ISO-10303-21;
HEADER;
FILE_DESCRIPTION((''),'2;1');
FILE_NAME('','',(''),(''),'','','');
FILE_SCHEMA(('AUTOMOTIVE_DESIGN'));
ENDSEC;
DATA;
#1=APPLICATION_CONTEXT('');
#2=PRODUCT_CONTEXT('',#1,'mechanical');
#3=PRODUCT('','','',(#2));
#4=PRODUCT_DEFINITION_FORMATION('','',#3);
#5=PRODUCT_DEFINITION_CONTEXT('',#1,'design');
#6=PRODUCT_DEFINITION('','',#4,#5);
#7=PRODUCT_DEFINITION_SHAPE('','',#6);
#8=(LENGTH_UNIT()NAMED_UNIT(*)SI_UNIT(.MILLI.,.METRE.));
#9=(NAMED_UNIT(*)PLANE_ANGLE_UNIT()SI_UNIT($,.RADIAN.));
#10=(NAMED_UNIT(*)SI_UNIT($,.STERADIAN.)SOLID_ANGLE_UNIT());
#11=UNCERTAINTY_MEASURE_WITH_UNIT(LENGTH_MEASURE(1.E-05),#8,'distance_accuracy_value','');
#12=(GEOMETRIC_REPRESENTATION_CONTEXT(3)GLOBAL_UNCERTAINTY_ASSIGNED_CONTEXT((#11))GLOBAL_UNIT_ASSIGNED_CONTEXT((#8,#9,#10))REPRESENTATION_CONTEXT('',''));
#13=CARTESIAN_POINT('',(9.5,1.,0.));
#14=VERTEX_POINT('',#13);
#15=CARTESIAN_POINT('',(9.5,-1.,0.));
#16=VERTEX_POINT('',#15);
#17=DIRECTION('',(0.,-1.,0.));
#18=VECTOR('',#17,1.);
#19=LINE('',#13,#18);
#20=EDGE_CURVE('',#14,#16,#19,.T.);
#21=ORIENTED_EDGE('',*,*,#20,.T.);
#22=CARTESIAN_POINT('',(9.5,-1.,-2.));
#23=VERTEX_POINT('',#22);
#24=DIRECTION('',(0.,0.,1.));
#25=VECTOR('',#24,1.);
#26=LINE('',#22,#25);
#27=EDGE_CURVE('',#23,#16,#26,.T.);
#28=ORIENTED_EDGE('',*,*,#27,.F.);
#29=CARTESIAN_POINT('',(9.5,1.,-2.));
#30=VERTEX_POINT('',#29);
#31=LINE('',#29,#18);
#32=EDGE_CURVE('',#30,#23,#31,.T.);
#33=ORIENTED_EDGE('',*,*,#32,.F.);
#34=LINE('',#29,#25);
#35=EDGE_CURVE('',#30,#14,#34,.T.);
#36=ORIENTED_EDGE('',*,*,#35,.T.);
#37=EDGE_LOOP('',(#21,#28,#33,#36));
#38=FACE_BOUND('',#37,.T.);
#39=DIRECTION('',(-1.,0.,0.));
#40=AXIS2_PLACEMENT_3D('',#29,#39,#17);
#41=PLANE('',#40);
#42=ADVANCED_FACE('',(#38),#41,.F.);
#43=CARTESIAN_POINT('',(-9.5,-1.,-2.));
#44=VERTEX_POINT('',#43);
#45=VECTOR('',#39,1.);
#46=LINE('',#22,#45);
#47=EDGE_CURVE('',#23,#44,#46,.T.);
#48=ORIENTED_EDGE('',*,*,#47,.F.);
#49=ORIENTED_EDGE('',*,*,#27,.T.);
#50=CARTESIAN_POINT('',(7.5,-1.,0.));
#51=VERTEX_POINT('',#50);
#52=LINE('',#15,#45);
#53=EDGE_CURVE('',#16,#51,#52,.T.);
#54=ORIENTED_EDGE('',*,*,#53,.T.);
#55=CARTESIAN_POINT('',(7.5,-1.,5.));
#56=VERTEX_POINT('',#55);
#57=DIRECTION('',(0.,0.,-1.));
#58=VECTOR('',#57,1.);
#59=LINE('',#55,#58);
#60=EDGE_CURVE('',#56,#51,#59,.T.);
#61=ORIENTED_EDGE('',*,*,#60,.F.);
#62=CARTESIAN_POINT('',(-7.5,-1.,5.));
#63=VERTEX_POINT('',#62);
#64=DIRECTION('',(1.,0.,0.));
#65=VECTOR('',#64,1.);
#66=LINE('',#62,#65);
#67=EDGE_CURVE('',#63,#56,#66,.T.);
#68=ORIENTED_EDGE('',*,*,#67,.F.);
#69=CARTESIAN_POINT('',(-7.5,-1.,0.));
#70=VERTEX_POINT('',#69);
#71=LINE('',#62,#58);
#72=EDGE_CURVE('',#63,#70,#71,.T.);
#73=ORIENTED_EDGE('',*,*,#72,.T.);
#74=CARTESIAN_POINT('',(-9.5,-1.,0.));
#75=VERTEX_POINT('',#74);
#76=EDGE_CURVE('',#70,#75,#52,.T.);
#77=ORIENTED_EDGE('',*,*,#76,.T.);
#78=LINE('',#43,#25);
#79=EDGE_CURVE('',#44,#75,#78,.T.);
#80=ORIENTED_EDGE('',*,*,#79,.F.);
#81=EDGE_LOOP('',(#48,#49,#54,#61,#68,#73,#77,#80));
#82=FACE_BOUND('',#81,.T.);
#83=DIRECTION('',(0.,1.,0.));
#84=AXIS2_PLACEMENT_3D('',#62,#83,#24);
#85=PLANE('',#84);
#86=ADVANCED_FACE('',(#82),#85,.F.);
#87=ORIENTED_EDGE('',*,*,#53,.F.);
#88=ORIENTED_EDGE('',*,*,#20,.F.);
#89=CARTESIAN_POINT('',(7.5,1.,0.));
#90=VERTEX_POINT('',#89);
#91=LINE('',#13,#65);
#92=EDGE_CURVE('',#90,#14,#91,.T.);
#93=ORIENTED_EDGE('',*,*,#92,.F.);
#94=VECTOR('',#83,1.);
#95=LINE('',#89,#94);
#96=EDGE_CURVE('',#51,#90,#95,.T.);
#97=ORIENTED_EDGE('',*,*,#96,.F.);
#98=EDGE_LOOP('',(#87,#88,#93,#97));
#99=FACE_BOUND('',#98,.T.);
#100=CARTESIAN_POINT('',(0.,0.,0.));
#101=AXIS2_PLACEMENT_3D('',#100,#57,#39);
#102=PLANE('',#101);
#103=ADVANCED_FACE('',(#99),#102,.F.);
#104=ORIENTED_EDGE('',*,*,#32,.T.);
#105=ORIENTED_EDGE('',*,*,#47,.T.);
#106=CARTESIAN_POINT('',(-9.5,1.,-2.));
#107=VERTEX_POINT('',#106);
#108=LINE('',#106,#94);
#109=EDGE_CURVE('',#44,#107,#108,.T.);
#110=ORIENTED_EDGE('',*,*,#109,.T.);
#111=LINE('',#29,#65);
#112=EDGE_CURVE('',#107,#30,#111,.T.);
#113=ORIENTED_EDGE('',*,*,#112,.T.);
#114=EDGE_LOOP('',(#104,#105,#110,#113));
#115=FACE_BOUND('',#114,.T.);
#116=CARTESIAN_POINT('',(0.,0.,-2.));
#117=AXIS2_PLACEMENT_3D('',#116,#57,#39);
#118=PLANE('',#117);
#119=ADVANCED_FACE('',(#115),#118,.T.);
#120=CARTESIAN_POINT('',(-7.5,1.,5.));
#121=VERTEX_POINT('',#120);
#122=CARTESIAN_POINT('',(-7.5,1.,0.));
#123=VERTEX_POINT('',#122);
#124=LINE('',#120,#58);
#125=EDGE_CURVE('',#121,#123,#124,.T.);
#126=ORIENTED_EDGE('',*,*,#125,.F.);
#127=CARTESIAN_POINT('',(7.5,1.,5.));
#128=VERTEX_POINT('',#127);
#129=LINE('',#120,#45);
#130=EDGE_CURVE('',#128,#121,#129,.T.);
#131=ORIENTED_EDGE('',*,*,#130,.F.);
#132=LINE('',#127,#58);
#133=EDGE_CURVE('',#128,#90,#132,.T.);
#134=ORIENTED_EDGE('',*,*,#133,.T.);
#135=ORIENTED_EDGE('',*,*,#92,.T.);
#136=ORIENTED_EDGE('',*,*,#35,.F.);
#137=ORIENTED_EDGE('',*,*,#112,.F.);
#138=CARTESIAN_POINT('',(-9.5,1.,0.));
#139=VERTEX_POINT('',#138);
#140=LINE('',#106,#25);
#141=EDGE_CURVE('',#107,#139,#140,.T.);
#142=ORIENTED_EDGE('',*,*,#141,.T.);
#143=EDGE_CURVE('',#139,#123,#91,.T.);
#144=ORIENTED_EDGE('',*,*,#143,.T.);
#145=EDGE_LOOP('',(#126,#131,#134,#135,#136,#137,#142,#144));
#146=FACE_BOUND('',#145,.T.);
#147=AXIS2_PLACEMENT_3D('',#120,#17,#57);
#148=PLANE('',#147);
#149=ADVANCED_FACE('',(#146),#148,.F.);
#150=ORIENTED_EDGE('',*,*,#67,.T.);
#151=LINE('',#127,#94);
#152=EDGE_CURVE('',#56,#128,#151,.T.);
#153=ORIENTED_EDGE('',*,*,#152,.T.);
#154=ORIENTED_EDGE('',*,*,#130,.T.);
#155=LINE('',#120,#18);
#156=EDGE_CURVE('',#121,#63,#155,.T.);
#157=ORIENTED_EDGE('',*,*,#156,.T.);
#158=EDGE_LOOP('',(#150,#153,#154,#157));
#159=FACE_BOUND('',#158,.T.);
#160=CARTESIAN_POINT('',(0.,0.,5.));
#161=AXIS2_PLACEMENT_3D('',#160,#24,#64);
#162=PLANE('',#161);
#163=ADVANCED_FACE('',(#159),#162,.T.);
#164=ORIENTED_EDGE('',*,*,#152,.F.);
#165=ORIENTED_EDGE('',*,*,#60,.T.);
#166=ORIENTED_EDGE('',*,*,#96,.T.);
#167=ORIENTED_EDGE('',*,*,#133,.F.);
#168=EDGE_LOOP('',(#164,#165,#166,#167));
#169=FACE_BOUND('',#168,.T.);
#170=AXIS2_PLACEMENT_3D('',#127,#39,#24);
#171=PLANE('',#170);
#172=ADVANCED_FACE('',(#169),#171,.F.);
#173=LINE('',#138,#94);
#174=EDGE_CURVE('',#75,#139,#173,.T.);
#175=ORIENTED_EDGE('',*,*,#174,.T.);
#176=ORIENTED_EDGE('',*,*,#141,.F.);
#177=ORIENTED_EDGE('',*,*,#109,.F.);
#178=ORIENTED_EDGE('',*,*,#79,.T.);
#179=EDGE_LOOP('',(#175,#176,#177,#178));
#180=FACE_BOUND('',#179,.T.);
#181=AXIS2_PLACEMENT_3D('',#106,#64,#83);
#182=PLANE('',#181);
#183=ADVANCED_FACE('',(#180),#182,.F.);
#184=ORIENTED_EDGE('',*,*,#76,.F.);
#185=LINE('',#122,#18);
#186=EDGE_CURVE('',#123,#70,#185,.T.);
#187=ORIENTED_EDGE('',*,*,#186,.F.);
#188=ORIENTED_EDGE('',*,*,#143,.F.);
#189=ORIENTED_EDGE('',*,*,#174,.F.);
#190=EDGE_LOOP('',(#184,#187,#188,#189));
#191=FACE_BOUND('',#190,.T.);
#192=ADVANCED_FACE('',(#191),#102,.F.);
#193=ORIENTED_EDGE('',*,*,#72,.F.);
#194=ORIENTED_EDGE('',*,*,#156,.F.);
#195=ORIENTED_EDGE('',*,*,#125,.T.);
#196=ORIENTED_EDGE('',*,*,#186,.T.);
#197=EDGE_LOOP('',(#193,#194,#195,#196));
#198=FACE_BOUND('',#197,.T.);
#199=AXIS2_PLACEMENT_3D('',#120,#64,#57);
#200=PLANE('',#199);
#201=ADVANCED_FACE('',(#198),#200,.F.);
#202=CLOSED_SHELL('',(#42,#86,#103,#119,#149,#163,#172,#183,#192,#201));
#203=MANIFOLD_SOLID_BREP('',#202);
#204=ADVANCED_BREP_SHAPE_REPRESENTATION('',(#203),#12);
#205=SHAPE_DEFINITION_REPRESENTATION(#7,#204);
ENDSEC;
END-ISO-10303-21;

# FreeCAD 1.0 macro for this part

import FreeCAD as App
import Part
import Sketcher


def add_polygon(sketch, points):
    """Adds a closed chain of lines whose ends are joined by coincident constraints."""
    first, n = sketch.GeometryCount, len(points)
    for a, b in zip(points, points[1:] + points[:1]):
        sketch.addGeometry(Part.LineSegment(App.Vector(*a, 0), App.Vector(*b, 0)), False)
    for i in range(n):
        sketch.addConstraint(Sketcher.Constraint("Coincident", first + i, 2, first + (i + 1) % n, 1))

doc = App.newDocument("Part")
body = doc.addObject("PartDesign::Body", "Body")

# Sketch on XY plane
sketch1 = doc.addObject("Sketcher::SketchObject", "Sketch")
body.addObject(sketch1)
sketch1.AttachmentSupport = (doc.XY_Plane, [""])
sketch1.MapMode = "FlatFace"
add_polygon(sketch1, [(-7.5, 1), (-7.5, -1), (7.5, -1), (7.5, 1)])  # lines 0-3
sketch1.addConstraint(Sketcher.Constraint("Vertical", 0))
sketch1.addConstraint(Sketcher.Constraint("Horizontal", 1))
sketch1.addConstraint(Sketcher.Constraint("Vertical", 2))
sketch1.addConstraint(Sketcher.Constraint("Horizontal", 3))
sketch1.addConstraint(Sketcher.Constraint("Symmetric", 0, 2, 2, 2, -1, 1))
sketch1.addConstraint(Sketcher.Constraint("DistanceX", 1, 1, 1, 2, 15.0))
sketch1.addConstraint(Sketcher.Constraint("DistanceY", 0, 2, 0, 1, 2.0))
pad1 = doc.addObject("PartDesign::Pad", "Pad")
body.addObject(pad1)
pad1.Profile = sketch1
pad1.Length = 5

# Sketch on XY plane
sketch2 = doc.addObject("Sketcher::SketchObject", "Sketch001")
body.addObject(sketch2)
sketch2.AttachmentSupport = (doc.XY_Plane, [""])
sketch2.MapMode = "FlatFace"
add_polygon(sketch2, [(9.5, 1), (9.5, -1), (-9.5, -1), (-9.5, 1)])  # lines 0-3
sketch2.addConstraint(Sketcher.Constraint("Vertical", 0))
sketch2.addConstraint(Sketcher.Constraint("Horizontal", 1))
sketch2.addConstraint(Sketcher.Constraint("Vertical", 2))
sketch2.addConstraint(Sketcher.Constraint("Horizontal", 3))
sketch2.addConstraint(Sketcher.Constraint("Symmetric", 0, 2, 2, 2, -1, 1))
sketch2.addConstraint(Sketcher.Constraint("DistanceX", 1, 2, 1, 1, 19.0))
sketch2.addConstraint(Sketcher.Constraint("DistanceY", 0, 2, 0, 1, 2.0))
pad2 = doc.addObject("PartDesign::Pad", "Pad001")
body.addObject(pad2)
pad2.Profile = sketch2
pad2.Length = 2
pad2.Reversed = True

doc.recompute()
